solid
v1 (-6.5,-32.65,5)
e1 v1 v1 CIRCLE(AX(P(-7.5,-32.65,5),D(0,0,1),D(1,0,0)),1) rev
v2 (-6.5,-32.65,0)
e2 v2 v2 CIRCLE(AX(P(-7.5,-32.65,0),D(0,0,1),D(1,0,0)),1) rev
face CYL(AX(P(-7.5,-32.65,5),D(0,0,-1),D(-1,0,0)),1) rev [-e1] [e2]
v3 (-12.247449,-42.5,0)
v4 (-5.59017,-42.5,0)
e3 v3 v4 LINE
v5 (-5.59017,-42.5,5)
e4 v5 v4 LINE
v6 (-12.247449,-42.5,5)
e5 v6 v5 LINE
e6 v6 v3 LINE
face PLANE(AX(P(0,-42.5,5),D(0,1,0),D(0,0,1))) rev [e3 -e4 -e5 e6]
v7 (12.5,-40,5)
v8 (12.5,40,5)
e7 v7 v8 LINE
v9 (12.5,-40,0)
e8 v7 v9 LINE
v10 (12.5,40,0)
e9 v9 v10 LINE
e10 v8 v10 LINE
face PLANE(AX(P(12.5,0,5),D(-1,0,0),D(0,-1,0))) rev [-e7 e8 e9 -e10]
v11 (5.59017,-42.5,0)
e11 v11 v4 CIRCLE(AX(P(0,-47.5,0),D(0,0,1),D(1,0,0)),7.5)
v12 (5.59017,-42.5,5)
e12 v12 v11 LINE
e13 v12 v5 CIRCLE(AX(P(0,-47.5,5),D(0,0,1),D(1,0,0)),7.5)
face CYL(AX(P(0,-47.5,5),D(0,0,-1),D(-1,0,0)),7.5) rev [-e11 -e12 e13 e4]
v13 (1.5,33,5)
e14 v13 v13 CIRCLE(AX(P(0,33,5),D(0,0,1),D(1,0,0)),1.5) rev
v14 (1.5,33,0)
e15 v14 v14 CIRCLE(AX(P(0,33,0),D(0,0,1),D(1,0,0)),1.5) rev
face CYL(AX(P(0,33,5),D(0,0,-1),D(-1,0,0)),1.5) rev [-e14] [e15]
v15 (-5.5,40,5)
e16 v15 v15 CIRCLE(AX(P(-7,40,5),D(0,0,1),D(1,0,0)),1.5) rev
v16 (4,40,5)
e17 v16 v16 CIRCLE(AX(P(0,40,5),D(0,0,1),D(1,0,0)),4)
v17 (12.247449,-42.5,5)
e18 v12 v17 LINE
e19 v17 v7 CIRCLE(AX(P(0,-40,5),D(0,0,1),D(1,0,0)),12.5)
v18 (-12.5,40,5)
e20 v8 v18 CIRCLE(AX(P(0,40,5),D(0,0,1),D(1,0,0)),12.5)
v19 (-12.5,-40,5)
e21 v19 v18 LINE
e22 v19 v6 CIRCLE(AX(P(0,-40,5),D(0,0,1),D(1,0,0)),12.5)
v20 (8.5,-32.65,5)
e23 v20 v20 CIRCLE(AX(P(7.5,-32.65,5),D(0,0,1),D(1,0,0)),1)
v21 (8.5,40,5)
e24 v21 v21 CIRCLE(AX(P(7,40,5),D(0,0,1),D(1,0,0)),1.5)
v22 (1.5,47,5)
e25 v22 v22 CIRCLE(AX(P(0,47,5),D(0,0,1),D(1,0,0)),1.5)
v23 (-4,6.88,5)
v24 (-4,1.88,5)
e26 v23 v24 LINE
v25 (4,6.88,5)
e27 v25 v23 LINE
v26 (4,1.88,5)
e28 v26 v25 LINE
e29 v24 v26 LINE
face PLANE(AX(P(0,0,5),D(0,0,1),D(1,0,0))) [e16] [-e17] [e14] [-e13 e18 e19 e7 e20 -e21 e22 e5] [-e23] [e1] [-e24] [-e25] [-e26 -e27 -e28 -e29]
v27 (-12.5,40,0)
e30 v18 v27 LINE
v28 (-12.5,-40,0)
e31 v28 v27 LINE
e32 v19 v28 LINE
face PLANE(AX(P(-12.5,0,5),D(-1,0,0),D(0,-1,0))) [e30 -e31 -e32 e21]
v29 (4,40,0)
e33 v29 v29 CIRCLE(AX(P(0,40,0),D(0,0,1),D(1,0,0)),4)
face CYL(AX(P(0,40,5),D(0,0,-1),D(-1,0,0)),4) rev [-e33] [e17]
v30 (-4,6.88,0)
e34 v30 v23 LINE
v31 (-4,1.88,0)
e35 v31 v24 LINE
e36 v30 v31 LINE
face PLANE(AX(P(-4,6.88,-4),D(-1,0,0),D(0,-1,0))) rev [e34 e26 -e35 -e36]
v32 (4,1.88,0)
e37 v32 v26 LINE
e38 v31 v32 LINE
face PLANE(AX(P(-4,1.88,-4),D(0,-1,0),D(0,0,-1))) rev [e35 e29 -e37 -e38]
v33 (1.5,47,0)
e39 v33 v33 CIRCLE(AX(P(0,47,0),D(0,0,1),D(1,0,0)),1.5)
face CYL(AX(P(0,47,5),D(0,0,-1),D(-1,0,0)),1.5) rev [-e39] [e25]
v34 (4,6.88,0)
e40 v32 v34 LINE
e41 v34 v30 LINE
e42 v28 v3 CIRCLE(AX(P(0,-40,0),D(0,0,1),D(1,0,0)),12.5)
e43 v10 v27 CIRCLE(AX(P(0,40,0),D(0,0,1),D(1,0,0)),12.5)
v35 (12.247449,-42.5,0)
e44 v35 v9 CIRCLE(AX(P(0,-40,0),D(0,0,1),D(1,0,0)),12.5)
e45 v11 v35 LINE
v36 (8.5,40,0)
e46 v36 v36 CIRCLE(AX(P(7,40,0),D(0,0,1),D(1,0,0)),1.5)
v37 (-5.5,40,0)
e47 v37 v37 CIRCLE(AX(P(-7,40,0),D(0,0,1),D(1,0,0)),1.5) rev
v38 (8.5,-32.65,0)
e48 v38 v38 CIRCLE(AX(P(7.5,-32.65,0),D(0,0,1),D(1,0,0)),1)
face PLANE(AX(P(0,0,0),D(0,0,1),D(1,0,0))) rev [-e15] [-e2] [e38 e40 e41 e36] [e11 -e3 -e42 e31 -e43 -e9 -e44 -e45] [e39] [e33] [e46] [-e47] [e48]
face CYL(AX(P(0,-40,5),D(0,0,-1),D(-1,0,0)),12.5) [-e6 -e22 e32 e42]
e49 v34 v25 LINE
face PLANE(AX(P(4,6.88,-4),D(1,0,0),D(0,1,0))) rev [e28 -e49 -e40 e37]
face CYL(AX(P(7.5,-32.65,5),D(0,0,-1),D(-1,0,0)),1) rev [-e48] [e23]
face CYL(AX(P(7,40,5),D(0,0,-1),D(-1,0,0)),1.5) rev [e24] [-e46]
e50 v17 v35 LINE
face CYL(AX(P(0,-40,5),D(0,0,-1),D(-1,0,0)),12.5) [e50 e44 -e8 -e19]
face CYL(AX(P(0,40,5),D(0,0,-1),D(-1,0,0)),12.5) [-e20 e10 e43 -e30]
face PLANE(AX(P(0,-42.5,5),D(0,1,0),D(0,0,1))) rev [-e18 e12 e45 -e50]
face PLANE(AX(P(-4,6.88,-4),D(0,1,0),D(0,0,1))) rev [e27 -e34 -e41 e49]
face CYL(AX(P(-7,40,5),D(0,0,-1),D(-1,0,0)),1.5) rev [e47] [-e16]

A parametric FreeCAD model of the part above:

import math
import FreeCAD as App
import Part
import Sketcher

V = App.Vector


def add_polygon(sketch, points):
    """Adds a closed chain of lines whose ends are joined by coincident constraints."""
    first, n = sketch.GeometryCount, len(points)
    for a, b in zip(points, points[1:] + points[:1]):
        sketch.addGeometry(Part.LineSegment(App.Vector(*a, 0), App.Vector(*b, 0)), False)
    for i in range(n):
        sketch.addConstraint(Sketcher.Constraint("Coincident", first + i, 2, first + (i + 1) % n, 1))

doc = App.newDocument("Part")
params = doc.addObject("Spreadsheet::Sheet", "Params")
for row, (alias, value) in enumerate([
    ("sketch1_diameter", "2 mm"),
    ("sketch1_diameter2", "3 mm"),
    ("sketch1_diameter3", "8 mm"),
    ("sketch1_radius", "12.5 mm"),
    ("sketch1_radius2", "7.5 mm"),
    ("pad1_length", "5 mm"),
    ("sketch2_width", "8 mm"),
    ("sketch2_height", "5 mm"),
    ("pocket1_length", "10 mm"),
], start=1):
    params.set(f"A{row}", alias)
    params.set(f"B{row}", "=" + value)
    params.setAlias(f"B{row}", alias)

body = doc.addObject("PartDesign::Body", "Body")

# Sketch on XY plane
sketch1 = doc.addObject("Sketcher::SketchObject", "Sketch")
body.addObject(sketch1)
sketch1.AttachmentSupport = (doc.XY_Plane, [""])
sketch1.MapMode = "FlatFace"
sketch1.addGeometry(Part.LineSegment(V(-12.5, 40, 0), V(-12.5, -40, 0)), False)
sketch1.addGeometry(Part.ArcOfCircle(Part.Circle(V(0, -40, 0), V(0, 0, 1), 12.5), math.radians(180), math.radians(191.536959)), False)
sketch1.addGeometry(Part.LineSegment(V(-12.247449, -42.5, 0), V(-5.59017, -42.5, 0)), False)
sketch1.addGeometry(Part.ArcOfCircle(Part.Circle(V(0, -47.5, 0), V(0, 0, 1), 7.5), math.radians(41.810315), math.radians(138.189685)), False)
sketch1.addGeometry(Part.LineSegment(V(5.59017, -42.5, 0), V(12.247449, -42.5, 0)), False)
sketch1.addGeometry(Part.ArcOfCircle(Part.Circle(V(0, -40, 0), V(0, 0, 1), 12.5), math.radians(-11.536959), math.radians(0)), False)
sketch1.addGeometry(Part.LineSegment(V(12.5, -40, 0), V(12.5, 40, 0)), False)
sketch1.addGeometry(Part.ArcOfCircle(Part.Circle(V(0, 40, 0), V(0, 0, 1), 12.5), math.radians(0), math.radians(180)), False)
sketch1.addGeometry(Part.Circle(V(-7.5, -32.65, 0), V(0, 0, 1), 1), False)
sketch1.addGeometry(Part.Circle(V(7.5, -32.65, 0), V(0, 0, 1), 1), False)
sketch1.addGeometry(Part.Circle(V(-7, 40, 0), V(0, 0, 1), 1.5), False)
sketch1.addGeometry(Part.Circle(V(0, 33, 0), V(0, 0, 1), 1.5), False)
sketch1.addGeometry(Part.Circle(V(0, 40, 0), V(0, 0, 1), 4), False)
sketch1.addGeometry(Part.Circle(V(0, 47, 0), V(0, 0, 1), 1.5), False)
sketch1.addGeometry(Part.Circle(V(7, 40, 0), V(0, 0, 1), 1.5), False)
sketch1.addConstraint(Sketcher.Constraint("Tangent", 0, 2, 1, 1))
sketch1.addConstraint(Sketcher.Constraint("Coincident", 1, 2, 2, 1))
sketch1.addConstraint(Sketcher.Constraint("Coincident", 2, 2, 3, 2))
sketch1.addConstraint(Sketcher.Constraint("Coincident", 3, 1, 4, 1))
sketch1.addConstraint(Sketcher.Constraint("Coincident", 4, 2, 5, 1))
sketch1.addConstraint(Sketcher.Constraint("Tangent", 5, 2, 6, 1))
sketch1.addConstraint(Sketcher.Constraint("Tangent", 6, 2, 7, 1))
sketch1.addConstraint(Sketcher.Constraint("Tangent", 7, 2, 0, 1))
sketch1.addConstraint(Sketcher.Constraint("Vertical", 0))
sketch1.addConstraint(Sketcher.Constraint("Horizontal", 2))
sketch1.addConstraint(Sketcher.Constraint("Horizontal", 4))
sketch1.addConstraint(Sketcher.Constraint("Vertical", 6))
sketch1.addConstraint(Sketcher.Constraint("Coincident", 5, 3, 1, 3))
sketch1.addConstraint(Sketcher.Constraint("Coincident", 12, 3, 7, 3))
sketch1.addConstraint(Sketcher.Constraint("Equal", 1, 5))
sketch1.addConstraint(Sketcher.Constraint("Equal", 8, 9))
sketch1.addConstraint(Sketcher.Constraint("Equal", 10, 11))
sketch1.addConstraint(Sketcher.Constraint("Equal", 11, 13))
sketch1.addConstraint(Sketcher.Constraint("Equal", 13, 14))
sketch1.addConstraint(Sketcher.Constraint("Symmetric", 1, 3, 7, 3, -1, 1))
sketch1.addConstraint(Sketcher.Constraint("Symmetric", 8, 3, 9, 3, -2))
sketch1.addConstraint(Sketcher.Constraint("Symmetric", 10, 3, 14, 3, -2))
sketch1.addConstraint(Sketcher.Constraint("Symmetric", 2, 2, 3, 1, -2))
sketch1.addConstraint(Sketcher.Constraint("PointOnObject", 11, 3, -2))
sketch1.addConstraint(Sketcher.Constraint("PointOnObject", 13, 3, -2))
sketch1.addConstraint(Sketcher.Constraint("Horizontal", 7, 3, 10, 3))
sketch1.addConstraint(Sketcher.Constraint("Diameter", 8, 2.0))
sketch1.addConstraint(Sketcher.Constraint("Diameter", 10, 3.0))
sketch1.addConstraint(Sketcher.Constraint("Diameter", 12, 8.0))
sketch1.addConstraint(Sketcher.Constraint("Radius", 1, 12.5))
sketch1.addConstraint(Sketcher.Constraint("Radius", 3, 7.5))
sketch1.addConstraint(Sketcher.Constraint("DistanceY", 0, 2, 0, 1, 80.0))
sketch1.addConstraint(Sketcher.Constraint("DistanceX", 10, 3, -1, 1, 7.0))
sketch1.addConstraint(Sketcher.Constraint("DistanceY", -1, 1, 11, 3, 33.0))
sketch1.addConstraint(Sketcher.Constraint("DistanceY", -1, 1, 13, 3, 47.0))
sketch1.addConstraint(Sketcher.Constraint("DistanceX", 8, 3, 9, 3, 15.0))
sketch1.addConstraint(Sketcher.Constraint("DistanceY", 3, 3, 1, 2, 5.0))
sketch1.addConstraint(Sketcher.Constraint("DistanceY", 3, 3, -1, 1, 47.5))
sketch1.addConstraint(Sketcher.Constraint("DistanceY", 8, 3, -1, 1, 32.65))
sketch1.setExpression("Constraints[26]", "Params.sketch1_diameter")
sketch1.setExpression("Constraints[27]", "Params.sketch1_diameter2")
sketch1.setExpression("Constraints[28]", "Params.sketch1_diameter3")
sketch1.setExpression("Constraints[29]", "Params.sketch1_radius")
sketch1.setExpression("Constraints[30]", "Params.sketch1_radius2")
pad1 = doc.addObject("PartDesign::Pad", "Pad")
body.addObject(pad1)
pad1.Profile = sketch1
pad1.setExpression("Length", "Params.pad1_length")

# Sketch on XY plane
sketch2 = doc.addObject("Sketcher::SketchObject", "Sketch001")
body.addObject(sketch2)
sketch2.AttachmentSupport = (doc.XY_Plane, [""])
sketch2.MapMode = "FlatFace"
sketch2.AttachmentOffset = App.Placement(V(0, 0, 6), App.Rotation())
add_polygon(sketch2, [(-4, 6.88), (-4, 1.88), (4, 1.88), (4, 6.88)])  # lines 0-3
sketch2.addConstraint(Sketcher.Constraint("Vertical", 0))
sketch2.addConstraint(Sketcher.Constraint("Horizontal", 1))
sketch2.addConstraint(Sketcher.Constraint("Vertical", 2))
sketch2.addConstraint(Sketcher.Constraint("Horizontal", 3))
sketch2.addConstraint(Sketcher.Constraint("DistanceX", 1, 1, 1, 2, 8.0))
sketch2.addConstraint(Sketcher.Constraint("DistanceY", 0, 2, 0, 1, 5.0))
sketch2.addConstraint(Sketcher.Constraint("DistanceX", 0, 2, -1, 1, 4.0))
sketch2.addConstraint(Sketcher.Constraint("DistanceY", -1, 1, 0, 2, 1.88))
sketch2.setExpression("Constraints[8]", "Params.sketch2_width")
sketch2.setExpression("Constraints[9]", "Params.sketch2_height")
pocket1 = doc.addObject("PartDesign::Pocket", "Pocket")
body.addObject(pocket1)
pocket1.Profile = sketch2
pocket1.setExpression("Length", "Params.pocket1_length")

doc.recompute()
